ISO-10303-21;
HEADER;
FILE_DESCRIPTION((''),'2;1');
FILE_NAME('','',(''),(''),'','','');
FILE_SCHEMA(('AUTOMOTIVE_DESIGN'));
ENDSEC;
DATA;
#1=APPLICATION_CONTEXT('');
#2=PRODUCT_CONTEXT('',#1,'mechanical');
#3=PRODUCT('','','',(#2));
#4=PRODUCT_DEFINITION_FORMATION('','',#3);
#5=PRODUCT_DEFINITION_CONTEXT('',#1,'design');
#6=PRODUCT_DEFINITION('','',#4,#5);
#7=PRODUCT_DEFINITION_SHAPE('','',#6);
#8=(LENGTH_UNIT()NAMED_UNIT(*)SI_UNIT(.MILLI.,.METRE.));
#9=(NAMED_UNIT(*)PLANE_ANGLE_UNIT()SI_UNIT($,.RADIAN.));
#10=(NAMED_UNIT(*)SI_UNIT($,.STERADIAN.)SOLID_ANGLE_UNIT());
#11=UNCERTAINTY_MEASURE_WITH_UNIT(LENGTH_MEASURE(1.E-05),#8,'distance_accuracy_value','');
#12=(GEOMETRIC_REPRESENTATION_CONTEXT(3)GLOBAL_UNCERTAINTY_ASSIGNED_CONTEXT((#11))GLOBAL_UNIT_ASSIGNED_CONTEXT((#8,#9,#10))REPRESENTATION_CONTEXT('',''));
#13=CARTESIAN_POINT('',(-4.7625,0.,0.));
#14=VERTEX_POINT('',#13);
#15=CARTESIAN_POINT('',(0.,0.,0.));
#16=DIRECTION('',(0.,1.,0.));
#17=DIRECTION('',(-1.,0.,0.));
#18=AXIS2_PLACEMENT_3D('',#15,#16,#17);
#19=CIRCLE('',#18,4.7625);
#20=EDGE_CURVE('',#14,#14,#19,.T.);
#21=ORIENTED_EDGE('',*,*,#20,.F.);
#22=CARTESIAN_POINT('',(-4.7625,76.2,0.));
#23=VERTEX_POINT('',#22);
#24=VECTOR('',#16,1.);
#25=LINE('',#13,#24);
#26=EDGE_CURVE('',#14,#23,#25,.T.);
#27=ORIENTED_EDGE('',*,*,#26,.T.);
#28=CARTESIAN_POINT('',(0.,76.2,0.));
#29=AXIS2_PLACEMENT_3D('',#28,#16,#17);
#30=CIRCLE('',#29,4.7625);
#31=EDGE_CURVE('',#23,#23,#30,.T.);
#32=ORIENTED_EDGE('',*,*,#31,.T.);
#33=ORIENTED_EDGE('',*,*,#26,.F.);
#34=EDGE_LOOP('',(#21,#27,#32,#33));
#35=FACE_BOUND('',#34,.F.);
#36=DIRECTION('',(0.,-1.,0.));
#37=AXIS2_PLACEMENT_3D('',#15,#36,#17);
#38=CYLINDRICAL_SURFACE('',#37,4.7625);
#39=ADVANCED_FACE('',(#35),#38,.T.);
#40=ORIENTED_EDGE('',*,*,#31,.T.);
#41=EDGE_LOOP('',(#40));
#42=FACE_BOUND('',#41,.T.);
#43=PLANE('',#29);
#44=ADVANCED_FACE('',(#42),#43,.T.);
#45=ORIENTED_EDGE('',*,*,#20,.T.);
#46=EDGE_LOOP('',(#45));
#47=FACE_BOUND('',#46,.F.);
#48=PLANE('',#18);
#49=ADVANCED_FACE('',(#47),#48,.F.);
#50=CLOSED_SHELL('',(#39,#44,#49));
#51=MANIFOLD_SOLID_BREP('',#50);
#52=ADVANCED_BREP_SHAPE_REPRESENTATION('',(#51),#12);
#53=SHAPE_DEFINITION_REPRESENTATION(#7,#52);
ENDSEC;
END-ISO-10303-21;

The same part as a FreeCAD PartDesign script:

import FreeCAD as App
import Part
import Sketcher
from FreeCAD import Vector
Q = App.Units.Quantity

doc = App.newDocument("Part")
body = doc.addObject("PartDesign::Body", "Body")

# Sketch on XZ plane
sketch1 = doc.addObject("Sketcher::SketchObject", "Sketch")
body.addObject(sketch1)
sketch1.AttachmentSupport = (doc.XZ_Plane, [""])
sketch1.MapMode = "FlatFace"
sketch1.addGeometry(Part.Circle(Vector(0, 0, 0), Vector(0, 0, 1), 4.8), False)
sketch1.addConstraint([
    Sketcher.Constraint("Coincident", 0, 3, -1, 1),
    Sketcher.Constraint("Diameter", 0, Q("0.375 in")),
])
pad1 = doc.addObject("PartDesign::Pad", "Pad")
body.addObject(pad1)
pad1.Profile = sketch1
pad1.Length = Q("3 in")
pad1.Reversed = True

doc.recompute()
